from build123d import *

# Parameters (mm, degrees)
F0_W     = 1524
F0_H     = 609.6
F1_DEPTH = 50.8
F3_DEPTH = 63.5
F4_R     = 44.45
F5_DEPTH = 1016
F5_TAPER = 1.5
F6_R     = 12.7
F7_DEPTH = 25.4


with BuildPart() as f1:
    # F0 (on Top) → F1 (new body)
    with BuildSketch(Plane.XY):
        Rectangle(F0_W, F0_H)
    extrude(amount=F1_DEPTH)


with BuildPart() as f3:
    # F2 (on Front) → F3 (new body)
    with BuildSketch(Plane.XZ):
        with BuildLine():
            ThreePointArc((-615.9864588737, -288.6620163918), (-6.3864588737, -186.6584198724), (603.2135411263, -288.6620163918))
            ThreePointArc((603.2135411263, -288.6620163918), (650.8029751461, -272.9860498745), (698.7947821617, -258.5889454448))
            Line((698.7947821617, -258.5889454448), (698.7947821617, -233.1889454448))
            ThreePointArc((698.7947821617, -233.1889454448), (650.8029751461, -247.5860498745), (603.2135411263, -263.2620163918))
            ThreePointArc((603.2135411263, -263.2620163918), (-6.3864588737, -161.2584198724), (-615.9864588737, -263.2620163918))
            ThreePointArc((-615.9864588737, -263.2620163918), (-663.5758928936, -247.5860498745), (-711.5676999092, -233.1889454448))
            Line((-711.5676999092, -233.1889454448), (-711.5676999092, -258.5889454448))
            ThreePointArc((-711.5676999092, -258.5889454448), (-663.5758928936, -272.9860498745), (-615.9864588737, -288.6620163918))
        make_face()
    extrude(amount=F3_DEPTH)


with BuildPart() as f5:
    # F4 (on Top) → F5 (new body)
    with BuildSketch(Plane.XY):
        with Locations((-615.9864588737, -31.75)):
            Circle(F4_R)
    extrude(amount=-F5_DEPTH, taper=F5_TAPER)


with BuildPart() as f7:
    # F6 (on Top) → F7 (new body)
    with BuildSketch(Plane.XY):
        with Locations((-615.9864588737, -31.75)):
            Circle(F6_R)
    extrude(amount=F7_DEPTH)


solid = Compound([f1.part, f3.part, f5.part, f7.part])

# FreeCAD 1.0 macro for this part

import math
import FreeCAD as App
import Part
import Sketcher
Q = App.Units.Quantity


def add_polygon(sketch, points):
    """Adds a closed chain of lines whose ends are joined by coincident constraints."""
    first, n = sketch.GeometryCount, len(points)
    for a, b in zip(points, points[1:] + points[:1]):
        sketch.addGeometry(Part.LineSegment(App.Vector(*a, 0), App.Vector(*b, 0)), False)
    for i in range(n):
        sketch.addConstraint(Sketcher.Constraint("Coincident", first + i, 2, first + (i + 1) % n, 1))

doc = App.newDocument("Part")
body = doc.addObject("PartDesign::Body", "Body")

# Sketch on XY plane
sketch1 = body.newObject("Sketcher::SketchObject", "Sketch")
sketch1.AttachmentSupport = (doc.getObject("XY_Plane"), [""])
sketch1.MapMode = "FlatFace"
add_polygon(sketch1, [(-762, 305), (-762, -305), (762, -305), (762, 305)])  # lines 0-3
sketch1.addConstraint([
    Sketcher.Constraint("Vertical", 0),
    Sketcher.Constraint("Horizontal", 1),
    Sketcher.Constraint("Vertical", 2),
    Sketcher.Constraint("Horizontal", 3),
    Sketcher.Constraint("Symmetric", 0, 2, 2, 2, -1, 1),
    Sketcher.Constraint("DistanceX", 1, 1, 1, 2, Q("60 in")),
    Sketcher.Constraint("DistanceY", 0, 2, 0, 1, Q("24 in")),
])
pad1 = body.newObject("PartDesign::Pad", "Pad")
pad1.Profile = sketch1
pad1.Length = Q("2 in")
body2 = doc.addObject("PartDesign::Body", "Body001")

# Sketch on XZ plane
sketch2 = body2.newObject("Sketcher::SketchObject", "Sketch001")
sketch2.AttachmentSupport = (doc.getObject("XZ_Plane001"), [""])
sketch2.MapMode = "FlatFace"
sketch2.addGeometry([
    Part.ArcOfCircle(Part.Circle(App.Vector(-6, -2059, 0), App.Vector(0, 0, 1), 1873), math.radians(71), math.radians(109)),  # 0
    Part.ArcOfCircle(Part.Circle(App.Vector(1213, -2059, 0), App.Vector(0, 0, 1), 1873), math.radians(105.93), math.radians(109)),  # 1
    Part.LineSegment(App.Vector(699, -259, 0), App.Vector(699, -233, 0)),  # 2
    Part.ArcOfCircle(Part.Circle(App.Vector(1213, -2034, 0), App.Vector(0, 0, 1), 1873), math.radians(105.93), math.radians(109)),  # 3
    Part.ArcOfCircle(Part.Circle(App.Vector(-6, -2034, 0), App.Vector(0, 0, 1), 1873), math.radians(71), math.radians(109)),  # 4
    Part.ArcOfCircle(Part.Circle(App.Vector(-1226, -2034, 0), App.Vector(0, 0, 1), 1873), math.radians(71), math.radians(74.07)),  # 5
    Part.LineSegment(App.Vector(-712, -233, 0), App.Vector(-712, -259, 0)),  # 6
    Part.ArcOfCircle(Part.Circle(App.Vector(-1226, -2059, 0), App.Vector(0, 0, 1), 1873), math.radians(71), math.radians(74.07)),  # 7
], False)
sketch2.addConstraint([
    Sketcher.Constraint("Coincident", 0, 1, 1, 2),
    Sketcher.Constraint("Coincident", 1, 1, 2, 1),
    Sketcher.Constraint("Coincident", 2, 2, 3, 1),
    Sketcher.Constraint("Coincident", 3, 2, 4, 1),
    Sketcher.Constraint("Coincident", 4, 2, 5, 1),
    Sketcher.Constraint("Coincident", 5, 2, 6, 1),
    Sketcher.Constraint("Coincident", 6, 2, 7, 2),
    Sketcher.Constraint("Coincident", 7, 1, 0, 2),
    Sketcher.Constraint("Vertical", 2),
    Sketcher.Constraint("Vertical", 6),
    Sketcher.Constraint("Equal", 0, 1),
    Sketcher.Constraint("Equal", 1, 3),
    Sketcher.Constraint("Equal", 3, 4),
    Sketcher.Constraint("Equal", 4, 5),
    Sketcher.Constraint("Equal", 5, 7),
    Sketcher.Constraint("Horizontal", 0, 3, 1, 3),
    Sketcher.Constraint("Horizontal", 3, 3, 4, 3),
    Sketcher.Constraint("Horizontal", 4, 3, 5, 3),
    Sketcher.Constraint("Horizontal", 1, 3, 7, 3),
    Sketcher.Constraint("Vertical", 1, 3, 3, 3),
    Sketcher.Constraint("Vertical", 0, 3, 4, 3),
    Sketcher.Constraint("Vertical", 5, 3, 7, 3),
    Sketcher.Constraint("DistanceY", 2, 1, 2, 2, Q("1 in")),
    Sketcher.Constraint("DistanceX", 0, 3, 1, 3, Q("48 in")),
    Sketcher.Constraint("DistanceX", 5, 3, 4, 3, Q("48 in")),
    Sketcher.Constraint("Radius", 0, 1872.565805),
    Sketcher.Constraint("DistanceX", 6, 2, -1, 1, 711.5677),
    Sketcher.Constraint("DistanceX", 0, 3, -1, 1, 6.386459),
    Sketcher.Constraint("DistanceX", 2, 2, 3, 3, 514.018759),
    Sketcher.Constraint("DistanceY", 0, 3, -1, 1, 2059.224225),
])
pad2 = body2.newObject("PartDesign::Pad", "Pad001")
pad2.Profile = sketch2
pad2.Length = Q("2.5 in")
body3 = doc.addObject("PartDesign::Body", "Body002")

# Sketch on XY plane
sketch3 = body3.newObject("Sketcher::SketchObject", "Sketch002")
sketch3.AttachmentSupport = (doc.getObject("XY_Plane002"), [""])
sketch3.MapMode = "FlatFace"
sketch3.addGeometry(Part.Circle(App.Vector(-616, -32, 0), App.Vector(0, 0, 1), 44), False)
sketch3.addConstraint([
    Sketcher.Constraint("Diameter", 0, Q("3.5 in")),
    Sketcher.Constraint("DistanceY", 0, 3, -1, 1, Q("1.25 in")),
    Sketcher.Constraint("DistanceX", 0, 3, -1, 1, 615.986459),
])
pad3 = body3.newObject("PartDesign::Pad", "Pad002")
pad3.Profile = sketch3
pad3.Length = Q("40 in")
pad3.Reversed = True
pad3.TaperAngle = -1.5
body4 = doc.addObject("PartDesign::Body", "Body003")

# Sketch on XY plane
sketch4 = body4.newObject("Sketcher::SketchObject", "Sketch003")
sketch4.AttachmentSupport = (doc.getObject("XY_Plane003"), [""])
sketch4.MapMode = "FlatFace"
sketch4.addGeometry(Part.Circle(App.Vector(-616, -32, 0), App.Vector(0, 0, 1), 13), False)
sketch4.addConstraint([
    Sketcher.Constraint("Diameter", 0, Q("1 in")),
    Sketcher.Constraint("DistanceY", 0, 3, -1, 1, Q("1.25 in")),
    Sketcher.Constraint("DistanceX", 0, 3, -1, 1, 615.986459),
])
pad4 = body4.newObject("PartDesign::Pad", "Pad003")
pad4.Profile = sketch4
pad4.Length = Q("1 in")

doc.recompute()
